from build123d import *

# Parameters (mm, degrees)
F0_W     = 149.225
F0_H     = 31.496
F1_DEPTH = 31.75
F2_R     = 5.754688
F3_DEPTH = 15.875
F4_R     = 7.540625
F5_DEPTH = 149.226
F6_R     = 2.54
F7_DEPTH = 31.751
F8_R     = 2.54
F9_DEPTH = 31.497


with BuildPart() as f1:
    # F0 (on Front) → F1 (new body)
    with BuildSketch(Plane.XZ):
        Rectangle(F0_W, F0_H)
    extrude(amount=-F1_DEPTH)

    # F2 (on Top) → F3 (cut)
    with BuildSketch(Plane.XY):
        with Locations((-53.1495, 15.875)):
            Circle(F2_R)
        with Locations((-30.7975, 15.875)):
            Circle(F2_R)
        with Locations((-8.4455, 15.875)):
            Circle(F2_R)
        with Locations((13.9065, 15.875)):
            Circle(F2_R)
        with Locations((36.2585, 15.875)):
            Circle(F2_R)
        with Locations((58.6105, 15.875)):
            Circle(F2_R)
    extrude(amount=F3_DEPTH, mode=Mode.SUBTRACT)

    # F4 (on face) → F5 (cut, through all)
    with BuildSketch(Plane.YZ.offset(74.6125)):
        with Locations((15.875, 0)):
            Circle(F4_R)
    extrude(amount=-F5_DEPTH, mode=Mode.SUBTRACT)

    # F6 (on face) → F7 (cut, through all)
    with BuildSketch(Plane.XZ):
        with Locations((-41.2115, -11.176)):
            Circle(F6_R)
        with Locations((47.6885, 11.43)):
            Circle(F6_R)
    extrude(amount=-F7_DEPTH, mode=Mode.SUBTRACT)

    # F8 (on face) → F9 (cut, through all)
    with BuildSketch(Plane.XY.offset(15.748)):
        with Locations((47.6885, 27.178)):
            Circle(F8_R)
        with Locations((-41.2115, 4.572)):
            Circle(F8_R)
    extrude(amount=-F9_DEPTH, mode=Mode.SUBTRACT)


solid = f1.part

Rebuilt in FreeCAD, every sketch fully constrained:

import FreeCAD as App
import Part
import Sketcher
from FreeCAD import Vector
Q = App.Units.Quantity

doc = App.newDocument("Part")
body = doc.addObject("PartDesign::Body", "Body")

# Sketch on XZ plane
sketch1 = body.newObject("Sketcher::SketchObject", "Sketch")
sketch1.AttachmentSupport = (doc.getObject("XZ_Plane"), [""])
sketch1.MapMode = "FlatFace"
sketch1.addGeometry([
    Part.LineSegment(Vector(-75, 16, 0), Vector(-75, -16, 0)),
    Part.LineSegment(Vector(-75, -16, 0), Vector(75, -16, 0)),
    Part.LineSegment(Vector(75, -16, 0), Vector(75, 16, 0)),
    Part.LineSegment(Vector(75, 16, 0), Vector(-75, 16, 0)),
], False)
sketch1.addConstraint([
    Sketcher.Constraint("Coincident", 0, 2, 1, 1),
    Sketcher.Constraint("Coincident", 1, 2, 2, 1),
    Sketcher.Constraint("Coincident", 2, 2, 3, 1),
    Sketcher.Constraint("Coincident", 3, 2, 0, 1),
    Sketcher.Constraint("Vertical", 0),
    Sketcher.Constraint("Horizontal", 1),
    Sketcher.Constraint("Vertical", 2),
    Sketcher.Constraint("Horizontal", 3),
    Sketcher.Constraint("Symmetric", 0, 2, 2, 2, -1, 1),
    Sketcher.Constraint("DistanceY", 0, 2, 0, 1, Q("1.24 in")),
    Sketcher.Constraint("DistanceX", 1, 1, 1, 2, Q("5.875 in")),
])
pad1 = body.newObject("PartDesign::Pad", "Pad")
pad1.Profile = sketch1
pad1.Length = Q("1.25 in")
pad1.Reversed = True

# Sketch on XY plane
sketch2 = body.newObject("Sketcher::SketchObject", "Sketch001")
sketch2.AttachmentSupport = (doc.getObject("XY_Plane"), [""])
sketch2.MapMode = "FlatFace"
sketch2.addGeometry([
    Part.Circle(Vector(-53, 16, 0), Vector(0, 0, 1), 6),  # 0
    Part.Circle(Vector(-31, 16, 0), Vector(0, 0, 1), 6),  # 1
    Part.Circle(Vector(-8, 16, 0), Vector(0, 0, 1), 6),  # 2
    Part.Circle(Vector(14, 16, 0), Vector(0, 0, 1), 6),  # 3
    Part.Circle(Vector(36, 16, 0), Vector(0, 0, 1), 6),  # 4
    Part.Circle(Vector(59, 16, 0), Vector(0, 0, 1), 6),  # 5
], False)
sketch2.addConstraint([
    Sketcher.Constraint("Equal", 0, 1),
    Sketcher.Constraint("Equal", 1, 2),
    Sketcher.Constraint("Equal", 2, 3),
    Sketcher.Constraint("Equal", 3, 4),
    Sketcher.Constraint("Equal", 4, 5),
    Sketcher.Constraint("Horizontal", 0, 3, 1, 3),
    Sketcher.Constraint("Horizontal", 1, 3, 2, 3),
    Sketcher.Constraint("Horizontal", 2, 3, 3, 3),
    Sketcher.Constraint("Horizontal", 3, 3, 4, 3),
    Sketcher.Constraint("Horizontal", 4, 3, 5, 3),
    Sketcher.Constraint("Diameter", 0, Q("0.453125 in")),
    Sketcher.Constraint("DistanceX", 0, 3, 5, 3, Q("4.4 in")),
    Sketcher.Constraint("DistanceX", 0, 3, 1, 3, Q("0.88 in")),
    Sketcher.Constraint("DistanceX", 1, 3, 2, 3, Q("0.88 in")),
    Sketcher.Constraint("DistanceX", 2, 3, 3, 3, Q("0.88 in")),
    Sketcher.Constraint("DistanceX", 3, 3, 4, 3, Q("0.88 in")),
    Sketcher.Constraint("DistanceY", -1, 1, 0, 3, Q("0.625 in")),
    Sketcher.Constraint("DistanceX", 0, 3, -1, 1, Q("2.0925 in")),
])
pocket1 = body.newObject("PartDesign::Pocket", "Pocket")
pocket1.Profile = sketch2
pocket1.Length = Q("0.625 in")
pocket1.Reversed = True

# Sketch on YZ plane
sketch3 = body.newObject("Sketcher::SketchObject", "Sketch002")
sketch3.AttachmentSupport = (doc.getObject("YZ_Plane"), [""])
sketch3.MapMode = "FlatFace"
sketch3.AttachmentOffset = App.Placement(Vector(0, 0, 2.9375 * 25.4), App.Rotation())
sketch3.addGeometry(Part.Circle(Vector(16, 0, 0), Vector(0, 0, 1), 8), False)
sketch3.addConstraint([
    Sketcher.Constraint("PointOnObject", 0, 3, -1),
    Sketcher.Constraint("Diameter", 0, Q("0.59375 in")),
    Sketcher.Constraint("DistanceX", -1, 1, 0, 3, Q("0.625 in")),
])
pocket2 = body.newObject("PartDesign::Pocket", "Pocket001")
pocket2.Profile = sketch3
pocket2.Type = "ThroughAll"

# Sketch on XZ plane
sketch4 = body.newObject("Sketcher::SketchObject", "Sketch003")
sketch4.AttachmentSupport = (doc.getObject("XZ_Plane"), [""])
sketch4.MapMode = "FlatFace"
sketch4.addGeometry([
    Part.Circle(Vector(-41.2, -11.2, 0), Vector(0, 0, 1), 2.5),
    Part.Circle(Vector(47.7, 11.4, 0), Vector(0, 0, 1), 2.5),
], False)
sketch4.addConstraint([
    Sketcher.Constraint("Equal", 0, 1),
    Sketcher.Constraint("Diameter", 0, Q("0.2 in")),
    Sketcher.Constraint("DistanceX", 0, 3, 1, 3, Q("3.5 in")),
    Sketcher.Constraint("DistanceY", 0, 3, -1, 1, Q("0.44 in")),
    Sketcher.Constraint("DistanceY", -1, 1, 1, 3, Q("0.45 in")),
    Sketcher.Constraint("DistanceX", 0, 3, -1, 1, Q("1.6225 in")),
])
pocket3 = body.newObject("PartDesign::Pocket", "Pocket002")
pocket3.Profile = sketch4
pocket3.Type = "ThroughAll"

# Sketch on XY plane
sketch5 = body.newObject("Sketcher::SketchObject", "Sketch004")
sketch5.AttachmentSupport = (doc.getObject("XY_Plane"), [""])
sketch5.MapMode = "FlatFace"
sketch5.AttachmentOffset = App.Placement(Vector(0, 0, 0.62 * 25.4), App.Rotation())
sketch5.addGeometry([
    Part.Circle(Vector(47.7, 27.2, 0), Vector(0, 0, 1), 2.5),
    Part.Circle(Vector(-41.2, 4.6, 0), Vector(0, 0, 1), 2.5),
], False)
sketch5.addConstraint([
    Sketcher.Constraint("Equal", 0, 1),
    Sketcher.Constraint("Diameter", 0, Q("0.2 in")),
    Sketcher.Constraint("DistanceX", 1, 3, 0, 3, Q("3.5 in")),
    Sketcher.Constraint("DistanceY", -1, 1, 0, 3, Q("1.07 in")),
    Sketcher.Constraint("DistanceY", -1, 1, 1, 3, Q("0.18 in")),
    Sketcher.Constraint("DistanceX", -1, 1, 0, 3, Q("1.8775 in")),
])
pocket4 = body.newObject("PartDesign::Pocket", "Pocket003")
pocket4.Profile = sketch5
pocket4.Type = "ThroughAll"

doc.recompute()
